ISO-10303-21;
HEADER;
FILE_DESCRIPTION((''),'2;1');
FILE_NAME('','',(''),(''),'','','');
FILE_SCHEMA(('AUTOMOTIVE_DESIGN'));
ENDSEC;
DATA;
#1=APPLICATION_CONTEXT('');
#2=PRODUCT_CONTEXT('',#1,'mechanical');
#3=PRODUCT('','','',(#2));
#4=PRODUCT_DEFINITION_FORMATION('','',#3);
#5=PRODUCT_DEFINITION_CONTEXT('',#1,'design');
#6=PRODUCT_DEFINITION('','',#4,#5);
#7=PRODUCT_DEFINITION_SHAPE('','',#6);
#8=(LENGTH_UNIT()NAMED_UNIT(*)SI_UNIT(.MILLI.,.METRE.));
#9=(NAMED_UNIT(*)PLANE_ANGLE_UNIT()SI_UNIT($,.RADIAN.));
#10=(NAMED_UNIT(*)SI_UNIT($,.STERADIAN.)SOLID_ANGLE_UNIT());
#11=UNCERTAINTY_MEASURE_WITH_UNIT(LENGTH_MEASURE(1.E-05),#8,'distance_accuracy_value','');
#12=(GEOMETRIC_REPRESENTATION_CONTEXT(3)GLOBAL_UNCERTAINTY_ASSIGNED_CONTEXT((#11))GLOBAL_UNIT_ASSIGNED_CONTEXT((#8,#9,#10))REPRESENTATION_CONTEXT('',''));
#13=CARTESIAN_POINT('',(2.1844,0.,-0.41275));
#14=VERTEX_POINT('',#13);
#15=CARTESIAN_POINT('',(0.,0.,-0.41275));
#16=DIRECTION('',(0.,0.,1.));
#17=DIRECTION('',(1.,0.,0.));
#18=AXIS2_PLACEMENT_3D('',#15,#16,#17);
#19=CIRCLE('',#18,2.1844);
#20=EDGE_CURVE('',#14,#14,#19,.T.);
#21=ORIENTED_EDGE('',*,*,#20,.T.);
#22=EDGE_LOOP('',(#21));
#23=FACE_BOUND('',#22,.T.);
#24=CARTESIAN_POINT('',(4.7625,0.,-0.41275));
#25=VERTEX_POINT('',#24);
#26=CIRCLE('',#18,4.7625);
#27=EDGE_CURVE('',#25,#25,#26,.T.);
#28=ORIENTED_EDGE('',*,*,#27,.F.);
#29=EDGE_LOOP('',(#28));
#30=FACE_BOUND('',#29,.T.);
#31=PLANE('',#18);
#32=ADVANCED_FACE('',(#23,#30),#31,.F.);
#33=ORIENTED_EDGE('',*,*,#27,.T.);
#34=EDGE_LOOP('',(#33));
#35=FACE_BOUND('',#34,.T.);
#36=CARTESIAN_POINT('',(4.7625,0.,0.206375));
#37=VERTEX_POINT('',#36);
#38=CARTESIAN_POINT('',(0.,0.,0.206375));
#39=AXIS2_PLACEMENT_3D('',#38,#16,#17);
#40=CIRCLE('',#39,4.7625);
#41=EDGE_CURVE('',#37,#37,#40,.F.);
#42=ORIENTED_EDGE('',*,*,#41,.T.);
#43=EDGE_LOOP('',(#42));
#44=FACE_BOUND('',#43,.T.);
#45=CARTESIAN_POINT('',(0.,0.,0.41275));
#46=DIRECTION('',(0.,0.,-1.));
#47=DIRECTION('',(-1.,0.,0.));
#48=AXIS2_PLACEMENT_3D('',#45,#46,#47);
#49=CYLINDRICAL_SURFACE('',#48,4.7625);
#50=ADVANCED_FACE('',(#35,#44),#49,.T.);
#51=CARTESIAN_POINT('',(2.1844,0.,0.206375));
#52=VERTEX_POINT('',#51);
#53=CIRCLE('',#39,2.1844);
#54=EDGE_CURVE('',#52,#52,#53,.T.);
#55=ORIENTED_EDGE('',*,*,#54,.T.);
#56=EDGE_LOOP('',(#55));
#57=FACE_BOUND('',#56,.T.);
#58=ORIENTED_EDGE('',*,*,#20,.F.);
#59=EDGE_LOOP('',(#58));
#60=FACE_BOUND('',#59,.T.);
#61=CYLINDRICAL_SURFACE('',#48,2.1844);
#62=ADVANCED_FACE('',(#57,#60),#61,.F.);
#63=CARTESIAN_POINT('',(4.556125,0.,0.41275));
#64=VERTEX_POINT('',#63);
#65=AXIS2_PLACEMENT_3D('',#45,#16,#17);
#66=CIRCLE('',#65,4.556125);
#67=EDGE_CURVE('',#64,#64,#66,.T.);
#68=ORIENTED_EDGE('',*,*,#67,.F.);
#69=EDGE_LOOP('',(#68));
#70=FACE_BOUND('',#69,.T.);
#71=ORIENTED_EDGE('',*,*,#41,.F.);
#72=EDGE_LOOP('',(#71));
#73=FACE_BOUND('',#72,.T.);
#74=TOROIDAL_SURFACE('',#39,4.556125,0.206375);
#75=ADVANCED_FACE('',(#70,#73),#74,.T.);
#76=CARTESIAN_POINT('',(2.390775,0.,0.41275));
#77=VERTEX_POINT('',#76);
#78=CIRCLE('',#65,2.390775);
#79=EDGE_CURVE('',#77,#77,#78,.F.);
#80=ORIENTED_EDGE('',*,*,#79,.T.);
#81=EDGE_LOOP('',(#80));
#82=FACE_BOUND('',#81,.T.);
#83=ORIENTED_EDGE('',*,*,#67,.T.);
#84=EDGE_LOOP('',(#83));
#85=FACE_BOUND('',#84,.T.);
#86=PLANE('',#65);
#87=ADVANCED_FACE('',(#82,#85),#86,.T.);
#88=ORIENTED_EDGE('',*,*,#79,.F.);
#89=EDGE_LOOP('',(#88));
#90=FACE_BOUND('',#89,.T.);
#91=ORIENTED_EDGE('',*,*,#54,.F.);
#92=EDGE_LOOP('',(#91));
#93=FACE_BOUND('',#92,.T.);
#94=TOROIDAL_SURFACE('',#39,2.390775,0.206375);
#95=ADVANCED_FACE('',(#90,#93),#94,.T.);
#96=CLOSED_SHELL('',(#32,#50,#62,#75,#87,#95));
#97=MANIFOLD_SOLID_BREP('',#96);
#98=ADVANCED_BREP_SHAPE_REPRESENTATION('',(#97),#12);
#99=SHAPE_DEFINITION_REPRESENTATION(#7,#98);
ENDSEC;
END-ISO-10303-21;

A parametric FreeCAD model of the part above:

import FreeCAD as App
import Part
import Sketcher

V = App.Vector
Q = App.Units.Quantity


def edges_at(feature, points):
    """Names of the edges that pass closest to the given points."""
    edges = feature.Shape.Edges
    near = lambda p: min(range(len(edges)), key=lambda i: edges[i].distToShape(Part.Vertex(*p))[0])
    return sorted({f"Edge{near(p) + 1}" for p in points})

doc = App.newDocument("Part")
body = doc.addObject("PartDesign::Body", "Body")

# Sketch on XY plane
sketch1 = body.newObject("Sketcher::SketchObject", "Sketch")
sketch1.AttachmentSupport = (doc.getObject("XY_Plane"), [""])
sketch1.MapMode = "FlatFace"
sketch1.addGeometry(Part.Circle(V(0, 0, 0), V(0, 0, 1), 4.8), False)
sketch1.addGeometry(Part.Circle(V(0, 0, 0), V(0, 0, 1), 2.2), False)
sketch1.addConstraint(Sketcher.Constraint("Coincident", 0, 3, -1, 1))
sketch1.addConstraint(Sketcher.Constraint("Coincident", 1, 3, -1, 1))
sketch1.addConstraint(Sketcher.Constraint("Diameter", 0, Q("0.375 in")))
sketch1.addConstraint(Sketcher.Constraint("Diameter", 1, Q("0.172 in")))
pad1 = body.newObject("PartDesign::Pad", "Pad")
pad1.Profile = sketch1
pad1.Type = "TwoLengths"
pad1.Length = 0.41275
pad1.Length2 = 0.41275
doc.recompute()

fillet = body.newObject("PartDesign::Fillet", "Fillet")
fillet.Base = (pad1, edges_at(pad1, [(-4.763, 0, 0.413), (-2.184, 0, 0.413)]))
fillet.Radius = 0.206375

doc.recompute()
